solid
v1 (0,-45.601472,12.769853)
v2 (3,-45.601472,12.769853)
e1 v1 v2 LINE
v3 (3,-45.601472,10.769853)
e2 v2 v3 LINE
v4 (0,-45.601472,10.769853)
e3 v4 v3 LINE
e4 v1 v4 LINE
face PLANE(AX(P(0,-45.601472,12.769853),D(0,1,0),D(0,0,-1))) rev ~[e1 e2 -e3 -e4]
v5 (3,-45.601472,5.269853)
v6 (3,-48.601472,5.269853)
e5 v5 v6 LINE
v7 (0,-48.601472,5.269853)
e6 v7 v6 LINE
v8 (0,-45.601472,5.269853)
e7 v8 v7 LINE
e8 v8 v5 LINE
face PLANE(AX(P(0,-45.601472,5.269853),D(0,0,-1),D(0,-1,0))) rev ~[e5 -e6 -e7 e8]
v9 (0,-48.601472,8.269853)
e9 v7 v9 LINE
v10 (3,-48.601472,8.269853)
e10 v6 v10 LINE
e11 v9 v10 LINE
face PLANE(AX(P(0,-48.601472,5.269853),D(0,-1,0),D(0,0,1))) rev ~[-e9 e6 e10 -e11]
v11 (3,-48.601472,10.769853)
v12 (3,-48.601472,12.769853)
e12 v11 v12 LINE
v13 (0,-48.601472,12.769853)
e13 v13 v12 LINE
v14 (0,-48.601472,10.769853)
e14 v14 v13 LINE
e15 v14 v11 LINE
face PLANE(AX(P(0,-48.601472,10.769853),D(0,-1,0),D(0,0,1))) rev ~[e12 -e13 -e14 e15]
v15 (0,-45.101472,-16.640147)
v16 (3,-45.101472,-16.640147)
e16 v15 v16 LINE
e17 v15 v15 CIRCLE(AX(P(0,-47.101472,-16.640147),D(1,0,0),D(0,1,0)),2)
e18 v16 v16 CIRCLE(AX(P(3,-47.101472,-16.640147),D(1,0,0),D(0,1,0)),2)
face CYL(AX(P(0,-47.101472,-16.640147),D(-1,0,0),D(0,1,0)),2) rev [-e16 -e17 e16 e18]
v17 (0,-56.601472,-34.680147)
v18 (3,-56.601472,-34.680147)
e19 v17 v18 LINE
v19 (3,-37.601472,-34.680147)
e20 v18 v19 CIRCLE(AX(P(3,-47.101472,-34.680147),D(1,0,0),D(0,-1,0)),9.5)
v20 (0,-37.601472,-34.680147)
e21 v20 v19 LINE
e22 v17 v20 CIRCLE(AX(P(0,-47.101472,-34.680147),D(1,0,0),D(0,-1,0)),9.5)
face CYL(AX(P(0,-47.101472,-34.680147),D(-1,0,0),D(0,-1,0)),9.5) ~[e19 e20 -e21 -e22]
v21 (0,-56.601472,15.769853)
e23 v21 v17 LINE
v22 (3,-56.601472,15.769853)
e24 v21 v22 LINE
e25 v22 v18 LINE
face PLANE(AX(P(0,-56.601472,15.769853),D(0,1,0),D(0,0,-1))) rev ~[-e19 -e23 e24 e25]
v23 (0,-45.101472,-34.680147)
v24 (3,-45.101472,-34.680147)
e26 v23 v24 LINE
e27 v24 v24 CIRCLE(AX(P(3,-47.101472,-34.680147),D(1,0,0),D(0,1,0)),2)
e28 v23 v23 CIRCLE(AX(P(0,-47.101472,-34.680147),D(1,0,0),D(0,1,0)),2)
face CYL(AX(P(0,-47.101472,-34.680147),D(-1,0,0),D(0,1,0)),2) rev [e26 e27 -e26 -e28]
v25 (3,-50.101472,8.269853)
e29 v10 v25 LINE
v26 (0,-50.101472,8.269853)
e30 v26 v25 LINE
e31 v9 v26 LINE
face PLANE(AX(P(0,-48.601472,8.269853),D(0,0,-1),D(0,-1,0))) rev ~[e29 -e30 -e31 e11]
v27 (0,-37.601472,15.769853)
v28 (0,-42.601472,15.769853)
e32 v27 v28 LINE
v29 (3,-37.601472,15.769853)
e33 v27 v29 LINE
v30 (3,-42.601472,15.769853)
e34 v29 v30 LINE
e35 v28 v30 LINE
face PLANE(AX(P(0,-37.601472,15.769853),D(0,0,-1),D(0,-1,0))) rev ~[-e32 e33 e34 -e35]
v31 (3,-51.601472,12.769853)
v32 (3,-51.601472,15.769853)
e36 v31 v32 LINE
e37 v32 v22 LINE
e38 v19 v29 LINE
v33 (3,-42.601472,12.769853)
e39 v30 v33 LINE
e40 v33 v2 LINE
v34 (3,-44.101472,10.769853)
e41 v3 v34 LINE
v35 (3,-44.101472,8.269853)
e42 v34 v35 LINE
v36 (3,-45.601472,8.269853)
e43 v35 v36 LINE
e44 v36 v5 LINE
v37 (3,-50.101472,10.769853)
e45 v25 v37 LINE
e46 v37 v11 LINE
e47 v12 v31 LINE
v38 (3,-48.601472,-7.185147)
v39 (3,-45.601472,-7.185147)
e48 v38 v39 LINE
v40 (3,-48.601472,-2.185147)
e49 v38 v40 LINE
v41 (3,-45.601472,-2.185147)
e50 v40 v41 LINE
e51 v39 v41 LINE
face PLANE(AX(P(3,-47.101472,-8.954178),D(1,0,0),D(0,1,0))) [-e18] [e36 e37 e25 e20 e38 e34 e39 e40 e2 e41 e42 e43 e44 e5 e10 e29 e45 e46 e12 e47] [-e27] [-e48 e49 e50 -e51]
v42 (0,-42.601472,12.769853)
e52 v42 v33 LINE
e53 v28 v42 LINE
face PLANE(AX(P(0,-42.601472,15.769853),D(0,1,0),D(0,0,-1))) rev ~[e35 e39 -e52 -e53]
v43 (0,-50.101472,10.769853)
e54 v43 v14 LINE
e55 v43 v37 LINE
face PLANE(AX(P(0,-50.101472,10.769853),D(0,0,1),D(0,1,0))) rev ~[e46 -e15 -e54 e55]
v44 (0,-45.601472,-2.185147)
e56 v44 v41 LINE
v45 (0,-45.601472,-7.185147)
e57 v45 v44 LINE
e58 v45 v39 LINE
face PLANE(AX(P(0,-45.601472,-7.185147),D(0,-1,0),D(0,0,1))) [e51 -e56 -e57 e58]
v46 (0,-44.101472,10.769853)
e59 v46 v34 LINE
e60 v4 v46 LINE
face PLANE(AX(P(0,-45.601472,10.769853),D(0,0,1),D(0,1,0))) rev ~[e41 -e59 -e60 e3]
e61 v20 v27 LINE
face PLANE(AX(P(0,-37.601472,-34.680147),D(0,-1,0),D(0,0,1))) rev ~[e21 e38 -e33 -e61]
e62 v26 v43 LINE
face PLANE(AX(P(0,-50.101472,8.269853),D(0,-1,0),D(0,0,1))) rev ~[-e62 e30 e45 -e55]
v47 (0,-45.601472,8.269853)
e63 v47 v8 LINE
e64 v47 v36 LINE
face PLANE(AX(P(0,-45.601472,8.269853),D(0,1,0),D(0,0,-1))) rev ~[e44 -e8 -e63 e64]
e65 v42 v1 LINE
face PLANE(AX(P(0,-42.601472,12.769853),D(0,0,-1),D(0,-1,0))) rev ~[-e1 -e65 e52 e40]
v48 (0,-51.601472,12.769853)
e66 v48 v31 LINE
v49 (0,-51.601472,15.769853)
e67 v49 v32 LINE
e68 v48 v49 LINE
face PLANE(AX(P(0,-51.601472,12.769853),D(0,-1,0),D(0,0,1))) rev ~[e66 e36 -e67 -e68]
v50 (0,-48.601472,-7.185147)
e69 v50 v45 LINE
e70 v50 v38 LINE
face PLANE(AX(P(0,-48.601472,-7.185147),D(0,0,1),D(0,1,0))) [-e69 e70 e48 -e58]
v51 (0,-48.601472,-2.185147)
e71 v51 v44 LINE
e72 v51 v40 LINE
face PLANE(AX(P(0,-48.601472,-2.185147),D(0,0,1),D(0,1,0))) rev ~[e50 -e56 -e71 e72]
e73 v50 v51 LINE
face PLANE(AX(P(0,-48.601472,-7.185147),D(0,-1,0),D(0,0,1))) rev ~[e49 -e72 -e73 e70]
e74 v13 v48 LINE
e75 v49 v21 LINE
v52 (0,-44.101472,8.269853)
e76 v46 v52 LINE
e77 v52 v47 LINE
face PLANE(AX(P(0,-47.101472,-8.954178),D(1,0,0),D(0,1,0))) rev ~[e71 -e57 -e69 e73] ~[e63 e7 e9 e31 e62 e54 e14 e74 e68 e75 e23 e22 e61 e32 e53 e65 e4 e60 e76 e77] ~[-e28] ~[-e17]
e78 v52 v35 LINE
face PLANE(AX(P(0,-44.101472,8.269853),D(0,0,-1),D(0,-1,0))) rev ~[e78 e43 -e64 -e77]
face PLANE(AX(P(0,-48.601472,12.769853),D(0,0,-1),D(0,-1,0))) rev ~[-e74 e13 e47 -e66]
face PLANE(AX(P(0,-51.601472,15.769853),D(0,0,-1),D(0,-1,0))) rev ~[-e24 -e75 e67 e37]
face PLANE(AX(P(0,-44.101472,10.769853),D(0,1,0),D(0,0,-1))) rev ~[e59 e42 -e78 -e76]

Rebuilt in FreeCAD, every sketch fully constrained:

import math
import FreeCAD as App
import Part
import Sketcher
from FreeCAD import Vector

doc = App.newDocument("Part")
params = doc.addObject("Spreadsheet::Sheet", "Params")
for row, (alias, value) in enumerate([
    ("sketch1_diameter", "4 mm"),
    ("sketch1_radius", "9.5 mm"),
    ("sketch1_width", "5 mm"),
    ("sketch1_height", "2 mm"),
    ("sketch1_width2", "1.5 mm"),
    ("pad1_length", "3 mm"),
], start=1):
    params.set(f"A{row}", alias)
    params.set(f"B{row}", "=" + value)
    params.setAlias(f"B{row}", alias)

body = doc.addObject("PartDesign::Body", "Body")

sketch1 = body.newObject("Sketcher::SketchObject", "Sketch")
sketch1.AttachmentSupport = (doc.getObject("YZ_Plane"), [""])
sketch1.MapMode = "FlatFace"
sketch1.addGeometry([
    Part.LineSegment(Vector(-51.6, 15.8, 0), Vector(-56.6, 15.8, 0)),
    Part.LineSegment(Vector(-56.6, 15.8, 0), Vector(-56.6, -34.7, 0)),
    Part.ArcOfCircle(Part.Circle(Vector(-47.1, -34.7, 0), Vector(0, 0, 1), 9.5), math.radians(180), math.radians(360)),
    Part.LineSegment(Vector(-37.6, -34.7, 0), Vector(-37.6, 15.8, 0)),
    Part.LineSegment(Vector(-37.6, 15.8, 0), Vector(-42.6, 15.8, 0)),
    Part.LineSegment(Vector(-42.6, 15.8, 0), Vector(-42.6, 12.8, 0)),
    Part.LineSegment(Vector(-42.6, 12.8, 0), Vector(-45.6, 12.8, 0)),
    Part.LineSegment(Vector(-45.6, 12.8, 0), Vector(-45.6, 10.8, 0)),
    Part.LineSegment(Vector(-45.6, 10.8, 0), Vector(-44.1, 10.8, 0)),
    Part.LineSegment(Vector(-44.1, 10.8, 0), Vector(-44.1, 8.3, 0)),
    Part.LineSegment(Vector(-44.1, 8.3, 0), Vector(-45.6, 8.3, 0)),
    Part.LineSegment(Vector(-45.6, 8.3, 0), Vector(-45.6, 5.3, 0)),
    Part.LineSegment(Vector(-45.6, 5.3, 0), Vector(-48.6, 5.3, 0)),
    Part.LineSegment(Vector(-48.6, 5.3, 0), Vector(-48.6, 8.3, 0)),
    Part.LineSegment(Vector(-48.6, 8.3, 0), Vector(-50.1, 8.3, 0)),
    Part.LineSegment(Vector(-50.1, 8.3, 0), Vector(-50.1, 10.8, 0)),
    Part.LineSegment(Vector(-50.1, 10.8, 0), Vector(-48.6, 10.8, 0)),
    Part.LineSegment(Vector(-48.6, 10.8, 0), Vector(-48.6, 12.8, 0)),
    Part.LineSegment(Vector(-48.6, 12.8, 0), Vector(-51.6, 12.8, 0)),
    Part.LineSegment(Vector(-51.6, 12.8, 0), Vector(-51.6, 15.8, 0)),
    Part.Circle(Vector(-47.1, -34.7, 0), Vector(0, 0, 1), 2),
    Part.Circle(Vector(-47.1, -16.6, 0), Vector(0, 0, 1), 2),
    Part.LineSegment(Vector(-45.6, -7.2, 0), Vector(-48.6, -7.2, 0)),
    Part.LineSegment(Vector(-48.6, -7.2, 0), Vector(-48.6, -2.2, 0)),
    Part.LineSegment(Vector(-48.6, -2.2, 0), Vector(-45.6, -2.2, 0)),
    Part.LineSegment(Vector(-45.6, -2.2, 0), Vector(-45.6, -7.2, 0)),
], False)
sketch1.addConstraint([
    Sketcher.Constraint("Coincident", 0, 2, 1, 1),
    Sketcher.Constraint("Tangent", 1, 2, 2, 1),
    Sketcher.Constraint("Tangent", 2, 2, 3, 1),
    Sketcher.Constraint("Coincident", 3, 2, 4, 1),
    Sketcher.Constraint("Coincident", 4, 2, 5, 1),
    Sketcher.Constraint("Coincident", 5, 2, 6, 1),
    Sketcher.Constraint("Coincident", 6, 2, 7, 1),
    Sketcher.Constraint("Coincident", 7, 2, 8, 1),
    Sketcher.Constraint("Coincident", 8, 2, 9, 1),
    Sketcher.Constraint("Coincident", 9, 2, 10, 1),
    Sketcher.Constraint("Coincident", 10, 2, 11, 1),
    Sketcher.Constraint("Coincident", 11, 2, 12, 1),
    Sketcher.Constraint("Coincident", 12, 2, 13, 1),
    Sketcher.Constraint("Coincident", 13, 2, 14, 1),
    Sketcher.Constraint("Coincident", 14, 2, 15, 1),
    Sketcher.Constraint("Coincident", 15, 2, 16, 1),
    Sketcher.Constraint("Coincident", 16, 2, 17, 1),
    Sketcher.Constraint("Coincident", 17, 2, 18, 1),
    Sketcher.Constraint("Coincident", 18, 2, 19, 1),
    Sketcher.Constraint("Coincident", 19, 2, 0, 1),
    Sketcher.Constraint("Coincident", 22, 2, 23, 1),
    Sketcher.Constraint("Coincident", 23, 2, 24, 1),
    Sketcher.Constraint("Coincident", 24, 2, 25, 1),
    Sketcher.Constraint("Coincident", 25, 2, 22, 1),
    Sketcher.Constraint("Horizontal", 0),
    Sketcher.Constraint("Vertical", 1),
    Sketcher.Constraint("Vertical", 3),
    Sketcher.Constraint("Horizontal", 4),
    Sketcher.Constraint("Vertical", 5),
    Sketcher.Constraint("Horizontal", 6),
    Sketcher.Constraint("Vertical", 7),
    Sketcher.Constraint("Horizontal", 8),
    Sketcher.Constraint("Vertical", 9),
    Sketcher.Constraint("Horizontal", 10),
    Sketcher.Constraint("Vertical", 11),
    Sketcher.Constraint("Horizontal", 12),
    Sketcher.Constraint("Vertical", 13),
    Sketcher.Constraint("Horizontal", 14),
    Sketcher.Constraint("Vertical", 15),
    Sketcher.Constraint("Horizontal", 16),
    Sketcher.Constraint("Vertical", 17),
    Sketcher.Constraint("Horizontal", 18),
    Sketcher.Constraint("Vertical", 19),
    Sketcher.Constraint("Horizontal", 22),
    Sketcher.Constraint("Vertical", 23),
    Sketcher.Constraint("Horizontal", 24),
    Sketcher.Constraint("Vertical", 25),
    Sketcher.Constraint("Coincident", 20, 3, 2, 3),
    Sketcher.Constraint("Equal", 20, 21),
    Sketcher.Constraint("Horizontal", 0, 2, 3, 2),
    Sketcher.Constraint("Horizontal", 10, 2, 13, 2),
    Sketcher.Constraint("Horizontal", 8, 2, 15, 2),
    Sketcher.Constraint("Horizontal", 6, 2, 17, 2),
    Sketcher.Constraint("Vertical", 20, 3, 21, 3),
    Sketcher.Constraint("Vertical", 7, 2, 10, 2),
    Sketcher.Constraint("Vertical", 13, 2, 16, 2),
    Sketcher.Constraint("Vertical", 17, 2, 22, 2),
    Sketcher.Constraint("Vertical", 11, 2, 24, 2),
    Sketcher.Constraint("Equal", 0, 4),
    Sketcher.Constraint("Equal", 6, 12),
    Sketcher.Constraint("Equal", 10, 14),
    Sketcher.Constraint("Equal", 12, 18),
    Sketcher.Constraint("Equal", 24, 5),
    Sketcher.Constraint("Equal", 5, 11),
    Sketcher.Constraint("Equal", 4, 23),
    Sketcher.Constraint("Diameter", 20, 4.0),
    Sketcher.Constraint("Radius", 2, 9.5),
    Sketcher.Constraint("DistanceX", 0, 2, 0, 1, 5.0),
    Sketcher.Constraint("DistanceY", 7, 2, 7, 1, 2.0),
    Sketcher.Constraint("DistanceX", 8, 1, 8, 2, 1.5),
    Sketcher.Constraint("DistanceY", 9, 2, 9, 1, 2.5),
    Sketcher.Constraint("DistanceY", 1, 2, 1, 1, 50.45),
    Sketcher.Constraint("DistanceY", 2, 3, 21, 3, 18.04),
    Sketcher.Constraint("DistanceY", 21, 3, 22, 2, 9.455),
    Sketcher.Constraint("DistanceX", 2, 3, -1, 1, 47.101472),
    Sketcher.Constraint("DistanceY", 2, 3, -1, 1, 34.680147),
])
sketch1.setExpression("Constraints[65]", "Params.sketch1_diameter")
sketch1.setExpression("Constraints[66]", "Params.sketch1_radius")
sketch1.setExpression("Constraints[67]", "Params.sketch1_width")
sketch1.setExpression("Constraints[68]", "Params.sketch1_height")
sketch1.setExpression("Constraints[69]", "Params.sketch1_width2")
pad1 = body.newObject("PartDesign::Pad", "Pad")
pad1.Profile = sketch1
pad1.setExpression("Length", "Params.pad1_length")

doc.recompute()
